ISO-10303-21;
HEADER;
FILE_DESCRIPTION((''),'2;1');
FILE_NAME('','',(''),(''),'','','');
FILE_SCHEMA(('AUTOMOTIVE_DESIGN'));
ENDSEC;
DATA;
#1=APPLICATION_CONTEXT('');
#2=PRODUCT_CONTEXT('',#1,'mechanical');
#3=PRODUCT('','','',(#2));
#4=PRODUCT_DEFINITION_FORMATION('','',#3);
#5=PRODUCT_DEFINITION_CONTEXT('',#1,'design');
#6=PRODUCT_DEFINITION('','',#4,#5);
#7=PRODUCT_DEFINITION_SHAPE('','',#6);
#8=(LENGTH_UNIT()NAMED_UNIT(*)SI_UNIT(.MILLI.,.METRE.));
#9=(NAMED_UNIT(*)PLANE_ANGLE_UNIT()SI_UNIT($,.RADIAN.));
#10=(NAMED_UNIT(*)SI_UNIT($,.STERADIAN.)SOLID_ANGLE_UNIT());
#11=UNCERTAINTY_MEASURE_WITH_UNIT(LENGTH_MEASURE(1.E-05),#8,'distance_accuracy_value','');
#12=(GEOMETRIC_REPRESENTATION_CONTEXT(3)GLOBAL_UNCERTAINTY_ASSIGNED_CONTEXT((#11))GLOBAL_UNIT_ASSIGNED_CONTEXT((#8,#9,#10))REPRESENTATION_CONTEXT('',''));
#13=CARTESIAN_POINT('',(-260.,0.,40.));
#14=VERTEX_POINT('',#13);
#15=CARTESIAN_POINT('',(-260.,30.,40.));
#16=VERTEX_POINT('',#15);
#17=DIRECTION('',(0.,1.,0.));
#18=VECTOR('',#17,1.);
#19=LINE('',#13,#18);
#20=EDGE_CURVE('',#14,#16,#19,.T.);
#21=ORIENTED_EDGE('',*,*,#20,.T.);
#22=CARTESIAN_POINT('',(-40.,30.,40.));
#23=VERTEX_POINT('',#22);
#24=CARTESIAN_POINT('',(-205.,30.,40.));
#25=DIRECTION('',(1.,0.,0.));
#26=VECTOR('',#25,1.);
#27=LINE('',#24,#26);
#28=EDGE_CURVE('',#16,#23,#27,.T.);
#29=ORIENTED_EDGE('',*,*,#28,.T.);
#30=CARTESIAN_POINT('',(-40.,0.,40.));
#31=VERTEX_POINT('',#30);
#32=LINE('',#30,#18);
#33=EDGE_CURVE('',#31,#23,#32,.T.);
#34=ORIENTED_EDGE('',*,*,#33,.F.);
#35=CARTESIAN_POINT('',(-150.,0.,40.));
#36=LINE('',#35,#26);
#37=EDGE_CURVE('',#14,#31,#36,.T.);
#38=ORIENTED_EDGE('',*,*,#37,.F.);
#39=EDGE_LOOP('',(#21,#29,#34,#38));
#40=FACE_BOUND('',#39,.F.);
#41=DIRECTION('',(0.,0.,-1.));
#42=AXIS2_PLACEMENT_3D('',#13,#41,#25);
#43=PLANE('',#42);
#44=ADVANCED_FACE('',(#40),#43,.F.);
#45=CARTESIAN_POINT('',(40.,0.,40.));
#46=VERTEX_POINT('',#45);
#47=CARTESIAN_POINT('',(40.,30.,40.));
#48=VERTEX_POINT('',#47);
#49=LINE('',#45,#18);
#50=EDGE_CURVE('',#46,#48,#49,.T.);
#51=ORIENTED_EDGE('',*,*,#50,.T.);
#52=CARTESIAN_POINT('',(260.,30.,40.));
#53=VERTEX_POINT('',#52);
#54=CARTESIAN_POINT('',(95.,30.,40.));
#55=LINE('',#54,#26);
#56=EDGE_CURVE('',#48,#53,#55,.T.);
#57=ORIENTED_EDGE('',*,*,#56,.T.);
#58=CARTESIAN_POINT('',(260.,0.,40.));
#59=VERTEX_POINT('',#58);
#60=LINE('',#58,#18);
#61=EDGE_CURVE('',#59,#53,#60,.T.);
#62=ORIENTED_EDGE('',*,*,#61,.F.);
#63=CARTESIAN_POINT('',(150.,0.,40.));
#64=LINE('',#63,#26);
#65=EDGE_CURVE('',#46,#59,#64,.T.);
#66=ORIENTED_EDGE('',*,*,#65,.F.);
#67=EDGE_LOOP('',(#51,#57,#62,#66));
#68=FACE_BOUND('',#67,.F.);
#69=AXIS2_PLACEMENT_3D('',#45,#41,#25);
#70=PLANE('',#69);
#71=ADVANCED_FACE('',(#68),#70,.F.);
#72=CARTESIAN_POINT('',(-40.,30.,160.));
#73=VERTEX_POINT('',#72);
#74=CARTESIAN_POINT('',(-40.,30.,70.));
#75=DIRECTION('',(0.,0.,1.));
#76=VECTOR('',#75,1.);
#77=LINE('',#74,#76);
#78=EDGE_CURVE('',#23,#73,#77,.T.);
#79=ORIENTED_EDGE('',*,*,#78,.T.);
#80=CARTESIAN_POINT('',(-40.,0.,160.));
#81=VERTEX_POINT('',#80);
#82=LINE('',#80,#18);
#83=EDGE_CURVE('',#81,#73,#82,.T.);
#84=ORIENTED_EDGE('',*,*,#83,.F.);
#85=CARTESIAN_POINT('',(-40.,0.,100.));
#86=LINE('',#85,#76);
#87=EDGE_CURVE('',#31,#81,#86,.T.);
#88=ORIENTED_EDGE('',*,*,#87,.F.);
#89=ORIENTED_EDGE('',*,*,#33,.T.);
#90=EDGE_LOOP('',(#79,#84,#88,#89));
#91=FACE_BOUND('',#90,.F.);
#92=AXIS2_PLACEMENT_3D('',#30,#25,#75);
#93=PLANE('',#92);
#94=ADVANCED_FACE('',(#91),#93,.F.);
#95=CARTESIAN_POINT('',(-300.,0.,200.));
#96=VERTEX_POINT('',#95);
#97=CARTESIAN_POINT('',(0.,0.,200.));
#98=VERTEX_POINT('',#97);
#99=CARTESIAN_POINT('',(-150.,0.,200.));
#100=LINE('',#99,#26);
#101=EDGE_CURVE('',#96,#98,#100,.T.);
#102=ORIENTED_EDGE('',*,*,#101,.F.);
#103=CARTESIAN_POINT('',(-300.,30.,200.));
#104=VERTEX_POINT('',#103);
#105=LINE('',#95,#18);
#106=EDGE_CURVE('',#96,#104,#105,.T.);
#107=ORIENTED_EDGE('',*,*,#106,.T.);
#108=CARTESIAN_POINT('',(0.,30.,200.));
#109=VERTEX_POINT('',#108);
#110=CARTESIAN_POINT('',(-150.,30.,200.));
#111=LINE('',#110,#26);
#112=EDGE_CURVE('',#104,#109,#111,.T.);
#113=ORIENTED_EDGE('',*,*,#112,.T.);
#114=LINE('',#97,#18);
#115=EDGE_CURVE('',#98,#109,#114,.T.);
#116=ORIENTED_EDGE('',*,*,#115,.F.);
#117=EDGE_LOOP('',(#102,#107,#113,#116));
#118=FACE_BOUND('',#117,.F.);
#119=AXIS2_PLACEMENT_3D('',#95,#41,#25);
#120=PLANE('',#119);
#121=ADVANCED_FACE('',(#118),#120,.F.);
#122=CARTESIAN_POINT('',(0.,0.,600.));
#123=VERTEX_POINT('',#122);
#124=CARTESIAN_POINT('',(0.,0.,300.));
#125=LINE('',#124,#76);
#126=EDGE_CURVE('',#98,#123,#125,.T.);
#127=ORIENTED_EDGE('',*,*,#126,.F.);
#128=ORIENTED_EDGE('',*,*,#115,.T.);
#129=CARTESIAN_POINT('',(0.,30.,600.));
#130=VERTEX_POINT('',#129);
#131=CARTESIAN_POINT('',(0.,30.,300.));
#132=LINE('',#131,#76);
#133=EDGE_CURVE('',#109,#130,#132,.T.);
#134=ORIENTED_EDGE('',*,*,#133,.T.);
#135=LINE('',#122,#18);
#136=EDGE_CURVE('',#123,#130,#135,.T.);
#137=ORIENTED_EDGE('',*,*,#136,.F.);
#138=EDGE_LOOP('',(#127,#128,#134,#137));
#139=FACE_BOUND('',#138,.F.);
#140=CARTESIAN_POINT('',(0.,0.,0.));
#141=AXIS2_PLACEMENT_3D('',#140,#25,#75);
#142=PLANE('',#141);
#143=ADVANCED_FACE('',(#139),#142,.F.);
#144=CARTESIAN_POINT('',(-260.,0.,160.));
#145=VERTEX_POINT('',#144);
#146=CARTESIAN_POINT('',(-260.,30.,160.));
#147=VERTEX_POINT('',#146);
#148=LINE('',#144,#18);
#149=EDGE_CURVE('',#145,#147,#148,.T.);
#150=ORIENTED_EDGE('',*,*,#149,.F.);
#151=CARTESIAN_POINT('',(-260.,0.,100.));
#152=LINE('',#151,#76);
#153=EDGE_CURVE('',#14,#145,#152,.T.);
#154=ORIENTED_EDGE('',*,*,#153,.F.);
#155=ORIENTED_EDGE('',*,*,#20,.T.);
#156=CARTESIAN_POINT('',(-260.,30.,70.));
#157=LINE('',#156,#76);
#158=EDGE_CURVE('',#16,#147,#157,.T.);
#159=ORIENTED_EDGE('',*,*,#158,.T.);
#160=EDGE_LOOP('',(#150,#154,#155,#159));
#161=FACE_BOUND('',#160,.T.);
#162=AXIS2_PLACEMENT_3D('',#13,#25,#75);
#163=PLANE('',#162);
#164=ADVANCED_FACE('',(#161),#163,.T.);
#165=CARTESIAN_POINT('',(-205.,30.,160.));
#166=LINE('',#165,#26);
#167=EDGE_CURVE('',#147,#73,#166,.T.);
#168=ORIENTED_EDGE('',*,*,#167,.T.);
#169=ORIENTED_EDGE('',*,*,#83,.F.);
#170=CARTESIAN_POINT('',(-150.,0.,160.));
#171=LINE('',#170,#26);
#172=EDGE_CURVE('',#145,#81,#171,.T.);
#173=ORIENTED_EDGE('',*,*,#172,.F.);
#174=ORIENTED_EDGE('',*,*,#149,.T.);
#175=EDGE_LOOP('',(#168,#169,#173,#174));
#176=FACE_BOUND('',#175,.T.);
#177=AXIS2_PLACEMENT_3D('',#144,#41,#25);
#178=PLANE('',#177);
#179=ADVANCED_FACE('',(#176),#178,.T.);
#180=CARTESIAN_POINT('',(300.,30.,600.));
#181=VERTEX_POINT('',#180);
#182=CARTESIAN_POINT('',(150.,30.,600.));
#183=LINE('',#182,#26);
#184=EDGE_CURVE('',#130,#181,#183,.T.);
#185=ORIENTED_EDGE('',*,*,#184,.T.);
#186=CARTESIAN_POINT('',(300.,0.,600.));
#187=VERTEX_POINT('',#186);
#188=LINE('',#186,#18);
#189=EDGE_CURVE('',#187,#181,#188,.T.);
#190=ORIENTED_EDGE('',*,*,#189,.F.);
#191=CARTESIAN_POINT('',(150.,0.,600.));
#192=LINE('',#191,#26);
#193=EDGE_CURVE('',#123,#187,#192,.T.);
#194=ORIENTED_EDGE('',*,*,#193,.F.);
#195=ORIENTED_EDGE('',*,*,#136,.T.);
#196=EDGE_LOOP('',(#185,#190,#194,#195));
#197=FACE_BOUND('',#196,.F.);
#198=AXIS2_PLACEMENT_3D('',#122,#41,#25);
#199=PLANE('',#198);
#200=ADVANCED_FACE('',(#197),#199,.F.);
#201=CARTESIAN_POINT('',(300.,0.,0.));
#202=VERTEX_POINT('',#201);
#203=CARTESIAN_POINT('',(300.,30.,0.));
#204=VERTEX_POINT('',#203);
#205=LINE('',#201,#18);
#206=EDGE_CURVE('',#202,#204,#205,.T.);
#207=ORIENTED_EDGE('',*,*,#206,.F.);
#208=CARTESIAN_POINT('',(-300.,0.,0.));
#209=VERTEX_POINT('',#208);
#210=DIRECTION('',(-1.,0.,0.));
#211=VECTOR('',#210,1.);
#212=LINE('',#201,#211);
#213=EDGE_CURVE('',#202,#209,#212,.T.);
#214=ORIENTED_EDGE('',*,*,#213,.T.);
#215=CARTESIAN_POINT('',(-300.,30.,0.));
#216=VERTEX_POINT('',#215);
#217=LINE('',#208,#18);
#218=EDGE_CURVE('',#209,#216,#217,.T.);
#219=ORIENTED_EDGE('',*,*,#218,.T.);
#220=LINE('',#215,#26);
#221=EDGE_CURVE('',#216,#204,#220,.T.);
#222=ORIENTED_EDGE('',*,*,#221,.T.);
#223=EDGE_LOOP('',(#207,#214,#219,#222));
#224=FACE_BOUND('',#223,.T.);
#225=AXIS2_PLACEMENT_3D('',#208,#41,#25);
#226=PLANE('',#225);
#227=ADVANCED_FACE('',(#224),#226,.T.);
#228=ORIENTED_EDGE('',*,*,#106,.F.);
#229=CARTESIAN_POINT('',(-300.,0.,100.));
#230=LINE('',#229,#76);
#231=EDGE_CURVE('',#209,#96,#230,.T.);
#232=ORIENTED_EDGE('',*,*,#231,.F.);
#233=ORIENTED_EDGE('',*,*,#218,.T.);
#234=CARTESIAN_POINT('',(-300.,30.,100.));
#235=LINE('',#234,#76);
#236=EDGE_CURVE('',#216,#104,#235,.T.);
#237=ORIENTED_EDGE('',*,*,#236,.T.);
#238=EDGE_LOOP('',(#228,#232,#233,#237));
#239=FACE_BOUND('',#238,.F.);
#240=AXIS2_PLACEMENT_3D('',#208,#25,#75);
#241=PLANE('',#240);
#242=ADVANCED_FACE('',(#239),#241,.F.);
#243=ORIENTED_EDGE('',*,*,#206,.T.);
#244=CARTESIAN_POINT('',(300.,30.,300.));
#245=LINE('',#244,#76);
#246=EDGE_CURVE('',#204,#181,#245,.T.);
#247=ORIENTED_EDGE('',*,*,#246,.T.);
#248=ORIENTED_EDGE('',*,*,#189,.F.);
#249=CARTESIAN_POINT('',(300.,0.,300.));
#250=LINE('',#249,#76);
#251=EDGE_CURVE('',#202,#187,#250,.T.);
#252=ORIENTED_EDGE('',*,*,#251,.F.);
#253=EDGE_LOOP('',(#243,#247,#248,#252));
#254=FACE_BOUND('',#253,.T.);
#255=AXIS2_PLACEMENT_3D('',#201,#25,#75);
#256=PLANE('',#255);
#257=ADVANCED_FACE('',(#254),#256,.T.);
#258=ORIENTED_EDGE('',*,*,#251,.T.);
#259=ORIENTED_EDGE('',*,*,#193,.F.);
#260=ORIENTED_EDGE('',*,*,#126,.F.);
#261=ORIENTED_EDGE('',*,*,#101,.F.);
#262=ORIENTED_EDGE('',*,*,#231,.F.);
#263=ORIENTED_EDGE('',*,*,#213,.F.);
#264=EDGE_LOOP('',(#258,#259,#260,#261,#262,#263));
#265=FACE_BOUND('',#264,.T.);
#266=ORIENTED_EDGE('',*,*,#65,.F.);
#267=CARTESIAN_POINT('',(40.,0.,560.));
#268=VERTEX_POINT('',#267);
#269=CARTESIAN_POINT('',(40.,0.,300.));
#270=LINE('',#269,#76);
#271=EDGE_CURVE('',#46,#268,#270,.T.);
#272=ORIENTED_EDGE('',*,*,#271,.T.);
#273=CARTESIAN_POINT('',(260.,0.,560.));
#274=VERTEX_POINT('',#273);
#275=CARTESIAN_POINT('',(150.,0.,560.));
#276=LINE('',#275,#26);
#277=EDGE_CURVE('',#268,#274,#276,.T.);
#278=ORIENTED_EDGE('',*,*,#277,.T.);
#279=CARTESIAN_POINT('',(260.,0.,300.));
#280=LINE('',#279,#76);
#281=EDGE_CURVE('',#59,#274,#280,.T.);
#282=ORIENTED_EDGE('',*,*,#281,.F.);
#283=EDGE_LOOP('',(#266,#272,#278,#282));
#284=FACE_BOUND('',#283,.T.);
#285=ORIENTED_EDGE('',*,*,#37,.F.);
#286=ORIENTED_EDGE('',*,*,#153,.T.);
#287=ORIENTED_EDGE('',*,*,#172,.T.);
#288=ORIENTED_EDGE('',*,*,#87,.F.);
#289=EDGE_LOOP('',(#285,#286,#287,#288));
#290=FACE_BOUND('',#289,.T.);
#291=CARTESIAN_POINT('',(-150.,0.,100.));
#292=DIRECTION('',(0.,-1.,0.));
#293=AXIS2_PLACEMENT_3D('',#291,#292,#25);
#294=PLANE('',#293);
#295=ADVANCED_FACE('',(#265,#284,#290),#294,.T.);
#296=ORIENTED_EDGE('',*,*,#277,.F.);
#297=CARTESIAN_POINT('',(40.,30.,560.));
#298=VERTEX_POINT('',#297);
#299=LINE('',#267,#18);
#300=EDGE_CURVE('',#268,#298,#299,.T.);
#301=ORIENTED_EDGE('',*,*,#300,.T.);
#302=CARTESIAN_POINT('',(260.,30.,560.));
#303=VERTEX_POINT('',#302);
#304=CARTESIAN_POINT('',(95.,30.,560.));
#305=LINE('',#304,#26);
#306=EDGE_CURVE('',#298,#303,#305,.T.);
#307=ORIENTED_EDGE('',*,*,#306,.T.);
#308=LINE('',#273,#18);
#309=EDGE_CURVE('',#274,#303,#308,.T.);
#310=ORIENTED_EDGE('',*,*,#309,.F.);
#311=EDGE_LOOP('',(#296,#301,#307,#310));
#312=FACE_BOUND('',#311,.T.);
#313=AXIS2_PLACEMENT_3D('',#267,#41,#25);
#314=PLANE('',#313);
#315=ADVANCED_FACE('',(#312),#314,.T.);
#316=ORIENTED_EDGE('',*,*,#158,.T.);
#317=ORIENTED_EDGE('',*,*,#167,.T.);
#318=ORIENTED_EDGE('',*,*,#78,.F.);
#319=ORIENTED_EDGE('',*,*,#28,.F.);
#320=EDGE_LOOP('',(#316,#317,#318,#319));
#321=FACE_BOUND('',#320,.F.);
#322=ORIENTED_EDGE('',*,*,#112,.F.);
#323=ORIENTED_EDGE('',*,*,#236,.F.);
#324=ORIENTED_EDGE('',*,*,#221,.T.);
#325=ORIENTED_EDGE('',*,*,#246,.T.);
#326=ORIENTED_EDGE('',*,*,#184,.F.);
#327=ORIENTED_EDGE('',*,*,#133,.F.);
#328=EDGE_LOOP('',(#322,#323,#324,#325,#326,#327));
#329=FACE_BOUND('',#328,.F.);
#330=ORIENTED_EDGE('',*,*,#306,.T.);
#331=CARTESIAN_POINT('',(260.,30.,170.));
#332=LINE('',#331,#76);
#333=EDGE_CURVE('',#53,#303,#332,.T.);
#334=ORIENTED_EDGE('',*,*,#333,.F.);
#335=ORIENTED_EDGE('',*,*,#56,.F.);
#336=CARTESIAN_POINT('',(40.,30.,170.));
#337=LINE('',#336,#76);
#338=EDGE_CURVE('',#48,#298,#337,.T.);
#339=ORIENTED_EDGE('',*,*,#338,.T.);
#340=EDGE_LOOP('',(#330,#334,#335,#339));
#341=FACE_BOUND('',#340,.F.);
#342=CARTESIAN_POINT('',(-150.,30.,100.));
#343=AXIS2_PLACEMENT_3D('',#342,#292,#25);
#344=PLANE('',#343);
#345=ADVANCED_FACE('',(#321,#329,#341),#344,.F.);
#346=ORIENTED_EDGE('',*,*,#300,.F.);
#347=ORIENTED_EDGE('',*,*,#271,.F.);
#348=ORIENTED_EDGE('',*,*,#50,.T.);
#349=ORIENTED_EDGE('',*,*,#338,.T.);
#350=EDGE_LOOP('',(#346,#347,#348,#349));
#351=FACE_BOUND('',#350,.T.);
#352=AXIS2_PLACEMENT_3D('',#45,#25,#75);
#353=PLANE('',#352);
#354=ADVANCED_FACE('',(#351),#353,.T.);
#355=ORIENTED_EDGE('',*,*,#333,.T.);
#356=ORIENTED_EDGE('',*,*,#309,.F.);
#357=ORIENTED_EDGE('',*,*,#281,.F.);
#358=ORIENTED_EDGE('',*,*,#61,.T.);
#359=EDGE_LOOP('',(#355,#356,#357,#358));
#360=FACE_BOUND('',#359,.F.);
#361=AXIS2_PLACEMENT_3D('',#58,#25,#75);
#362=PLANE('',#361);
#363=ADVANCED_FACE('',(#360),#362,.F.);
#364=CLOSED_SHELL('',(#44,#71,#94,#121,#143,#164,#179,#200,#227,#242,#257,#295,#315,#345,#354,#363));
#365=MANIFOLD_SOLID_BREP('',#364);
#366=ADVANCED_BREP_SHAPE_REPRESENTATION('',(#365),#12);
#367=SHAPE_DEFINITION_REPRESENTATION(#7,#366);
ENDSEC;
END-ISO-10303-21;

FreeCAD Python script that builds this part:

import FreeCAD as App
import Part
import Sketcher

V = App.Vector


def add_polygon(sketch, points):
    """Adds a closed chain of lines whose ends are joined by coincident constraints."""
    first, n = sketch.GeometryCount, len(points)
    for a, b in zip(points, points[1:] + points[:1]):
        sketch.addGeometry(Part.LineSegment(App.Vector(*a, 0), App.Vector(*b, 0)), False)
    for i in range(n):
        sketch.addConstraint(Sketcher.Constraint("Coincident", first + i, 2, first + (i + 1) % n, 1))

doc = App.newDocument("Part")
body = doc.addObject("PartDesign::Body", "Body")

sketch1 = doc.addObject("Sketcher::SketchObject", "Sketch")
body.addObject(sketch1)
sketch1.AttachmentSupport = (doc.XZ_Plane, [""])
sketch1.MapMode = "FlatFace"
add_polygon(sketch1, [(0, 600), (0, 0), (300, 0), (300, 600)])
sketch1.addConstraint(Sketcher.Constraint("Vertical", 0))
sketch1.addConstraint(Sketcher.Constraint("Horizontal", 1))
sketch1.addConstraint(Sketcher.Constraint("Vertical", 2))
sketch1.addConstraint(Sketcher.Constraint("Horizontal", 3))
sketch1.addConstraint(Sketcher.Constraint("Coincident", 0, 2, -1, 1))
sketch1.addConstraint(Sketcher.Constraint("DistanceX", 1, 1, 1, 2, 300.0))
sketch1.addConstraint(Sketcher.Constraint("DistanceY", 0, 2, 0, 1, 600.0))
pad1 = doc.addObject("PartDesign::Pad", "Pad")
body.addObject(pad1)
pad1.Profile = sketch1
pad1.Length = 30
pad1.Reversed = True

sketch2 = doc.addObject("Sketcher::SketchObject", "Sketch001")
body.addObject(sketch2)
sketch2.AttachmentSupport = (doc.XZ_Plane, [""])
sketch2.MapMode = "FlatFace"
add_polygon(sketch2, [(40, 560), (40, 40), (260, 40), (260, 560)])
sketch2.addConstraint(Sketcher.Constraint("Vertical", 0))
sketch2.addConstraint(Sketcher.Constraint("Horizontal", 1))
sketch2.addConstraint(Sketcher.Constraint("Vertical", 2))
sketch2.addConstraint(Sketcher.Constraint("Horizontal", 3))
sketch2.addConstraint(Sketcher.Constraint("DistanceX", 1, 1, 1, 2, 220.0))
sketch2.addConstraint(Sketcher.Constraint("DistanceY", 0, 2, 0, 1, 520.0))
sketch2.addConstraint(Sketcher.Constraint("DistanceX", -1, 1, 0, 2, 40.0))
sketch2.addConstraint(Sketcher.Constraint("DistanceY", -1, 1, 0, 2, 40.0))
pocket1 = doc.addObject("PartDesign::Pocket", "Pocket")
body.addObject(pocket1)
pocket1.Profile = sketch2
pocket1.Length = 35

sketch3 = doc.addObject("Sketcher::SketchObject", "Sketch002")
body.addObject(sketch3)
sketch3.AttachmentSupport = (doc.XZ_Plane, [""])
sketch3.MapMode = "FlatFace"
add_polygon(sketch3, [(-300, 200), (-300, 0), (0, 0), (0, 200)])
sketch3.addConstraint(Sketcher.Constraint("Vertical", 0))
sketch3.addConstraint(Sketcher.Constraint("Horizontal", 1))
sketch3.addConstraint(Sketcher.Constraint("Vertical", 2))
sketch3.addConstraint(Sketcher.Constraint("Horizontal", 3))
sketch3.addConstraint(Sketcher.Constraint("Coincident", 1, 2, -1, 1))
sketch3.addConstraint(Sketcher.Constraint("DistanceX", 1, 1, 1, 2, 300.0))
sketch3.addConstraint(Sketcher.Constraint("DistanceY", 0, 2, 0, 1, 200.0))
pad2 = doc.addObject("PartDesign::Pad", "Pad001")
body.addObject(pad2)
pad2.Profile = sketch3
pad2.Length = 30
pad2.Reversed = True

sketch4 = doc.addObject("Sketcher::SketchObject", "Sketch003")
body.addObject(sketch4)
sketch4.AttachmentSupport = (doc.XZ_Plane, [""])
sketch4.MapMode = "FlatFace"
add_polygon(sketch4, [(-260, 160), (-260, 40), (-40, 40), (-40, 160)])
sketch4.addConstraint(Sketcher.Constraint("Vertical", 0))
sketch4.addConstraint(Sketcher.Constraint("Horizontal", 1))
sketch4.addConstraint(Sketcher.Constraint("Vertical", 2))
sketch4.addConstraint(Sketcher.Constraint("Horizontal", 3))
sketch4.addConstraint(Sketcher.Constraint("DistanceX", 1, 1, 1, 2, 220.0))
sketch4.addConstraint(Sketcher.Constraint("DistanceY", 0, 2, 0, 1, 120.0))
sketch4.addConstraint(Sketcher.Constraint("DistanceX", 0, 2, -1, 1, 260.0))
sketch4.addConstraint(Sketcher.Constraint("DistanceY", -1, 1, 0, 2, 40.0))
pocket2 = doc.addObject("PartDesign::Pocket", "Pocket001")
body.addObject(pocket2)
pocket2.Profile = sketch4
pocket2.Length = 40

doc.recompute()
